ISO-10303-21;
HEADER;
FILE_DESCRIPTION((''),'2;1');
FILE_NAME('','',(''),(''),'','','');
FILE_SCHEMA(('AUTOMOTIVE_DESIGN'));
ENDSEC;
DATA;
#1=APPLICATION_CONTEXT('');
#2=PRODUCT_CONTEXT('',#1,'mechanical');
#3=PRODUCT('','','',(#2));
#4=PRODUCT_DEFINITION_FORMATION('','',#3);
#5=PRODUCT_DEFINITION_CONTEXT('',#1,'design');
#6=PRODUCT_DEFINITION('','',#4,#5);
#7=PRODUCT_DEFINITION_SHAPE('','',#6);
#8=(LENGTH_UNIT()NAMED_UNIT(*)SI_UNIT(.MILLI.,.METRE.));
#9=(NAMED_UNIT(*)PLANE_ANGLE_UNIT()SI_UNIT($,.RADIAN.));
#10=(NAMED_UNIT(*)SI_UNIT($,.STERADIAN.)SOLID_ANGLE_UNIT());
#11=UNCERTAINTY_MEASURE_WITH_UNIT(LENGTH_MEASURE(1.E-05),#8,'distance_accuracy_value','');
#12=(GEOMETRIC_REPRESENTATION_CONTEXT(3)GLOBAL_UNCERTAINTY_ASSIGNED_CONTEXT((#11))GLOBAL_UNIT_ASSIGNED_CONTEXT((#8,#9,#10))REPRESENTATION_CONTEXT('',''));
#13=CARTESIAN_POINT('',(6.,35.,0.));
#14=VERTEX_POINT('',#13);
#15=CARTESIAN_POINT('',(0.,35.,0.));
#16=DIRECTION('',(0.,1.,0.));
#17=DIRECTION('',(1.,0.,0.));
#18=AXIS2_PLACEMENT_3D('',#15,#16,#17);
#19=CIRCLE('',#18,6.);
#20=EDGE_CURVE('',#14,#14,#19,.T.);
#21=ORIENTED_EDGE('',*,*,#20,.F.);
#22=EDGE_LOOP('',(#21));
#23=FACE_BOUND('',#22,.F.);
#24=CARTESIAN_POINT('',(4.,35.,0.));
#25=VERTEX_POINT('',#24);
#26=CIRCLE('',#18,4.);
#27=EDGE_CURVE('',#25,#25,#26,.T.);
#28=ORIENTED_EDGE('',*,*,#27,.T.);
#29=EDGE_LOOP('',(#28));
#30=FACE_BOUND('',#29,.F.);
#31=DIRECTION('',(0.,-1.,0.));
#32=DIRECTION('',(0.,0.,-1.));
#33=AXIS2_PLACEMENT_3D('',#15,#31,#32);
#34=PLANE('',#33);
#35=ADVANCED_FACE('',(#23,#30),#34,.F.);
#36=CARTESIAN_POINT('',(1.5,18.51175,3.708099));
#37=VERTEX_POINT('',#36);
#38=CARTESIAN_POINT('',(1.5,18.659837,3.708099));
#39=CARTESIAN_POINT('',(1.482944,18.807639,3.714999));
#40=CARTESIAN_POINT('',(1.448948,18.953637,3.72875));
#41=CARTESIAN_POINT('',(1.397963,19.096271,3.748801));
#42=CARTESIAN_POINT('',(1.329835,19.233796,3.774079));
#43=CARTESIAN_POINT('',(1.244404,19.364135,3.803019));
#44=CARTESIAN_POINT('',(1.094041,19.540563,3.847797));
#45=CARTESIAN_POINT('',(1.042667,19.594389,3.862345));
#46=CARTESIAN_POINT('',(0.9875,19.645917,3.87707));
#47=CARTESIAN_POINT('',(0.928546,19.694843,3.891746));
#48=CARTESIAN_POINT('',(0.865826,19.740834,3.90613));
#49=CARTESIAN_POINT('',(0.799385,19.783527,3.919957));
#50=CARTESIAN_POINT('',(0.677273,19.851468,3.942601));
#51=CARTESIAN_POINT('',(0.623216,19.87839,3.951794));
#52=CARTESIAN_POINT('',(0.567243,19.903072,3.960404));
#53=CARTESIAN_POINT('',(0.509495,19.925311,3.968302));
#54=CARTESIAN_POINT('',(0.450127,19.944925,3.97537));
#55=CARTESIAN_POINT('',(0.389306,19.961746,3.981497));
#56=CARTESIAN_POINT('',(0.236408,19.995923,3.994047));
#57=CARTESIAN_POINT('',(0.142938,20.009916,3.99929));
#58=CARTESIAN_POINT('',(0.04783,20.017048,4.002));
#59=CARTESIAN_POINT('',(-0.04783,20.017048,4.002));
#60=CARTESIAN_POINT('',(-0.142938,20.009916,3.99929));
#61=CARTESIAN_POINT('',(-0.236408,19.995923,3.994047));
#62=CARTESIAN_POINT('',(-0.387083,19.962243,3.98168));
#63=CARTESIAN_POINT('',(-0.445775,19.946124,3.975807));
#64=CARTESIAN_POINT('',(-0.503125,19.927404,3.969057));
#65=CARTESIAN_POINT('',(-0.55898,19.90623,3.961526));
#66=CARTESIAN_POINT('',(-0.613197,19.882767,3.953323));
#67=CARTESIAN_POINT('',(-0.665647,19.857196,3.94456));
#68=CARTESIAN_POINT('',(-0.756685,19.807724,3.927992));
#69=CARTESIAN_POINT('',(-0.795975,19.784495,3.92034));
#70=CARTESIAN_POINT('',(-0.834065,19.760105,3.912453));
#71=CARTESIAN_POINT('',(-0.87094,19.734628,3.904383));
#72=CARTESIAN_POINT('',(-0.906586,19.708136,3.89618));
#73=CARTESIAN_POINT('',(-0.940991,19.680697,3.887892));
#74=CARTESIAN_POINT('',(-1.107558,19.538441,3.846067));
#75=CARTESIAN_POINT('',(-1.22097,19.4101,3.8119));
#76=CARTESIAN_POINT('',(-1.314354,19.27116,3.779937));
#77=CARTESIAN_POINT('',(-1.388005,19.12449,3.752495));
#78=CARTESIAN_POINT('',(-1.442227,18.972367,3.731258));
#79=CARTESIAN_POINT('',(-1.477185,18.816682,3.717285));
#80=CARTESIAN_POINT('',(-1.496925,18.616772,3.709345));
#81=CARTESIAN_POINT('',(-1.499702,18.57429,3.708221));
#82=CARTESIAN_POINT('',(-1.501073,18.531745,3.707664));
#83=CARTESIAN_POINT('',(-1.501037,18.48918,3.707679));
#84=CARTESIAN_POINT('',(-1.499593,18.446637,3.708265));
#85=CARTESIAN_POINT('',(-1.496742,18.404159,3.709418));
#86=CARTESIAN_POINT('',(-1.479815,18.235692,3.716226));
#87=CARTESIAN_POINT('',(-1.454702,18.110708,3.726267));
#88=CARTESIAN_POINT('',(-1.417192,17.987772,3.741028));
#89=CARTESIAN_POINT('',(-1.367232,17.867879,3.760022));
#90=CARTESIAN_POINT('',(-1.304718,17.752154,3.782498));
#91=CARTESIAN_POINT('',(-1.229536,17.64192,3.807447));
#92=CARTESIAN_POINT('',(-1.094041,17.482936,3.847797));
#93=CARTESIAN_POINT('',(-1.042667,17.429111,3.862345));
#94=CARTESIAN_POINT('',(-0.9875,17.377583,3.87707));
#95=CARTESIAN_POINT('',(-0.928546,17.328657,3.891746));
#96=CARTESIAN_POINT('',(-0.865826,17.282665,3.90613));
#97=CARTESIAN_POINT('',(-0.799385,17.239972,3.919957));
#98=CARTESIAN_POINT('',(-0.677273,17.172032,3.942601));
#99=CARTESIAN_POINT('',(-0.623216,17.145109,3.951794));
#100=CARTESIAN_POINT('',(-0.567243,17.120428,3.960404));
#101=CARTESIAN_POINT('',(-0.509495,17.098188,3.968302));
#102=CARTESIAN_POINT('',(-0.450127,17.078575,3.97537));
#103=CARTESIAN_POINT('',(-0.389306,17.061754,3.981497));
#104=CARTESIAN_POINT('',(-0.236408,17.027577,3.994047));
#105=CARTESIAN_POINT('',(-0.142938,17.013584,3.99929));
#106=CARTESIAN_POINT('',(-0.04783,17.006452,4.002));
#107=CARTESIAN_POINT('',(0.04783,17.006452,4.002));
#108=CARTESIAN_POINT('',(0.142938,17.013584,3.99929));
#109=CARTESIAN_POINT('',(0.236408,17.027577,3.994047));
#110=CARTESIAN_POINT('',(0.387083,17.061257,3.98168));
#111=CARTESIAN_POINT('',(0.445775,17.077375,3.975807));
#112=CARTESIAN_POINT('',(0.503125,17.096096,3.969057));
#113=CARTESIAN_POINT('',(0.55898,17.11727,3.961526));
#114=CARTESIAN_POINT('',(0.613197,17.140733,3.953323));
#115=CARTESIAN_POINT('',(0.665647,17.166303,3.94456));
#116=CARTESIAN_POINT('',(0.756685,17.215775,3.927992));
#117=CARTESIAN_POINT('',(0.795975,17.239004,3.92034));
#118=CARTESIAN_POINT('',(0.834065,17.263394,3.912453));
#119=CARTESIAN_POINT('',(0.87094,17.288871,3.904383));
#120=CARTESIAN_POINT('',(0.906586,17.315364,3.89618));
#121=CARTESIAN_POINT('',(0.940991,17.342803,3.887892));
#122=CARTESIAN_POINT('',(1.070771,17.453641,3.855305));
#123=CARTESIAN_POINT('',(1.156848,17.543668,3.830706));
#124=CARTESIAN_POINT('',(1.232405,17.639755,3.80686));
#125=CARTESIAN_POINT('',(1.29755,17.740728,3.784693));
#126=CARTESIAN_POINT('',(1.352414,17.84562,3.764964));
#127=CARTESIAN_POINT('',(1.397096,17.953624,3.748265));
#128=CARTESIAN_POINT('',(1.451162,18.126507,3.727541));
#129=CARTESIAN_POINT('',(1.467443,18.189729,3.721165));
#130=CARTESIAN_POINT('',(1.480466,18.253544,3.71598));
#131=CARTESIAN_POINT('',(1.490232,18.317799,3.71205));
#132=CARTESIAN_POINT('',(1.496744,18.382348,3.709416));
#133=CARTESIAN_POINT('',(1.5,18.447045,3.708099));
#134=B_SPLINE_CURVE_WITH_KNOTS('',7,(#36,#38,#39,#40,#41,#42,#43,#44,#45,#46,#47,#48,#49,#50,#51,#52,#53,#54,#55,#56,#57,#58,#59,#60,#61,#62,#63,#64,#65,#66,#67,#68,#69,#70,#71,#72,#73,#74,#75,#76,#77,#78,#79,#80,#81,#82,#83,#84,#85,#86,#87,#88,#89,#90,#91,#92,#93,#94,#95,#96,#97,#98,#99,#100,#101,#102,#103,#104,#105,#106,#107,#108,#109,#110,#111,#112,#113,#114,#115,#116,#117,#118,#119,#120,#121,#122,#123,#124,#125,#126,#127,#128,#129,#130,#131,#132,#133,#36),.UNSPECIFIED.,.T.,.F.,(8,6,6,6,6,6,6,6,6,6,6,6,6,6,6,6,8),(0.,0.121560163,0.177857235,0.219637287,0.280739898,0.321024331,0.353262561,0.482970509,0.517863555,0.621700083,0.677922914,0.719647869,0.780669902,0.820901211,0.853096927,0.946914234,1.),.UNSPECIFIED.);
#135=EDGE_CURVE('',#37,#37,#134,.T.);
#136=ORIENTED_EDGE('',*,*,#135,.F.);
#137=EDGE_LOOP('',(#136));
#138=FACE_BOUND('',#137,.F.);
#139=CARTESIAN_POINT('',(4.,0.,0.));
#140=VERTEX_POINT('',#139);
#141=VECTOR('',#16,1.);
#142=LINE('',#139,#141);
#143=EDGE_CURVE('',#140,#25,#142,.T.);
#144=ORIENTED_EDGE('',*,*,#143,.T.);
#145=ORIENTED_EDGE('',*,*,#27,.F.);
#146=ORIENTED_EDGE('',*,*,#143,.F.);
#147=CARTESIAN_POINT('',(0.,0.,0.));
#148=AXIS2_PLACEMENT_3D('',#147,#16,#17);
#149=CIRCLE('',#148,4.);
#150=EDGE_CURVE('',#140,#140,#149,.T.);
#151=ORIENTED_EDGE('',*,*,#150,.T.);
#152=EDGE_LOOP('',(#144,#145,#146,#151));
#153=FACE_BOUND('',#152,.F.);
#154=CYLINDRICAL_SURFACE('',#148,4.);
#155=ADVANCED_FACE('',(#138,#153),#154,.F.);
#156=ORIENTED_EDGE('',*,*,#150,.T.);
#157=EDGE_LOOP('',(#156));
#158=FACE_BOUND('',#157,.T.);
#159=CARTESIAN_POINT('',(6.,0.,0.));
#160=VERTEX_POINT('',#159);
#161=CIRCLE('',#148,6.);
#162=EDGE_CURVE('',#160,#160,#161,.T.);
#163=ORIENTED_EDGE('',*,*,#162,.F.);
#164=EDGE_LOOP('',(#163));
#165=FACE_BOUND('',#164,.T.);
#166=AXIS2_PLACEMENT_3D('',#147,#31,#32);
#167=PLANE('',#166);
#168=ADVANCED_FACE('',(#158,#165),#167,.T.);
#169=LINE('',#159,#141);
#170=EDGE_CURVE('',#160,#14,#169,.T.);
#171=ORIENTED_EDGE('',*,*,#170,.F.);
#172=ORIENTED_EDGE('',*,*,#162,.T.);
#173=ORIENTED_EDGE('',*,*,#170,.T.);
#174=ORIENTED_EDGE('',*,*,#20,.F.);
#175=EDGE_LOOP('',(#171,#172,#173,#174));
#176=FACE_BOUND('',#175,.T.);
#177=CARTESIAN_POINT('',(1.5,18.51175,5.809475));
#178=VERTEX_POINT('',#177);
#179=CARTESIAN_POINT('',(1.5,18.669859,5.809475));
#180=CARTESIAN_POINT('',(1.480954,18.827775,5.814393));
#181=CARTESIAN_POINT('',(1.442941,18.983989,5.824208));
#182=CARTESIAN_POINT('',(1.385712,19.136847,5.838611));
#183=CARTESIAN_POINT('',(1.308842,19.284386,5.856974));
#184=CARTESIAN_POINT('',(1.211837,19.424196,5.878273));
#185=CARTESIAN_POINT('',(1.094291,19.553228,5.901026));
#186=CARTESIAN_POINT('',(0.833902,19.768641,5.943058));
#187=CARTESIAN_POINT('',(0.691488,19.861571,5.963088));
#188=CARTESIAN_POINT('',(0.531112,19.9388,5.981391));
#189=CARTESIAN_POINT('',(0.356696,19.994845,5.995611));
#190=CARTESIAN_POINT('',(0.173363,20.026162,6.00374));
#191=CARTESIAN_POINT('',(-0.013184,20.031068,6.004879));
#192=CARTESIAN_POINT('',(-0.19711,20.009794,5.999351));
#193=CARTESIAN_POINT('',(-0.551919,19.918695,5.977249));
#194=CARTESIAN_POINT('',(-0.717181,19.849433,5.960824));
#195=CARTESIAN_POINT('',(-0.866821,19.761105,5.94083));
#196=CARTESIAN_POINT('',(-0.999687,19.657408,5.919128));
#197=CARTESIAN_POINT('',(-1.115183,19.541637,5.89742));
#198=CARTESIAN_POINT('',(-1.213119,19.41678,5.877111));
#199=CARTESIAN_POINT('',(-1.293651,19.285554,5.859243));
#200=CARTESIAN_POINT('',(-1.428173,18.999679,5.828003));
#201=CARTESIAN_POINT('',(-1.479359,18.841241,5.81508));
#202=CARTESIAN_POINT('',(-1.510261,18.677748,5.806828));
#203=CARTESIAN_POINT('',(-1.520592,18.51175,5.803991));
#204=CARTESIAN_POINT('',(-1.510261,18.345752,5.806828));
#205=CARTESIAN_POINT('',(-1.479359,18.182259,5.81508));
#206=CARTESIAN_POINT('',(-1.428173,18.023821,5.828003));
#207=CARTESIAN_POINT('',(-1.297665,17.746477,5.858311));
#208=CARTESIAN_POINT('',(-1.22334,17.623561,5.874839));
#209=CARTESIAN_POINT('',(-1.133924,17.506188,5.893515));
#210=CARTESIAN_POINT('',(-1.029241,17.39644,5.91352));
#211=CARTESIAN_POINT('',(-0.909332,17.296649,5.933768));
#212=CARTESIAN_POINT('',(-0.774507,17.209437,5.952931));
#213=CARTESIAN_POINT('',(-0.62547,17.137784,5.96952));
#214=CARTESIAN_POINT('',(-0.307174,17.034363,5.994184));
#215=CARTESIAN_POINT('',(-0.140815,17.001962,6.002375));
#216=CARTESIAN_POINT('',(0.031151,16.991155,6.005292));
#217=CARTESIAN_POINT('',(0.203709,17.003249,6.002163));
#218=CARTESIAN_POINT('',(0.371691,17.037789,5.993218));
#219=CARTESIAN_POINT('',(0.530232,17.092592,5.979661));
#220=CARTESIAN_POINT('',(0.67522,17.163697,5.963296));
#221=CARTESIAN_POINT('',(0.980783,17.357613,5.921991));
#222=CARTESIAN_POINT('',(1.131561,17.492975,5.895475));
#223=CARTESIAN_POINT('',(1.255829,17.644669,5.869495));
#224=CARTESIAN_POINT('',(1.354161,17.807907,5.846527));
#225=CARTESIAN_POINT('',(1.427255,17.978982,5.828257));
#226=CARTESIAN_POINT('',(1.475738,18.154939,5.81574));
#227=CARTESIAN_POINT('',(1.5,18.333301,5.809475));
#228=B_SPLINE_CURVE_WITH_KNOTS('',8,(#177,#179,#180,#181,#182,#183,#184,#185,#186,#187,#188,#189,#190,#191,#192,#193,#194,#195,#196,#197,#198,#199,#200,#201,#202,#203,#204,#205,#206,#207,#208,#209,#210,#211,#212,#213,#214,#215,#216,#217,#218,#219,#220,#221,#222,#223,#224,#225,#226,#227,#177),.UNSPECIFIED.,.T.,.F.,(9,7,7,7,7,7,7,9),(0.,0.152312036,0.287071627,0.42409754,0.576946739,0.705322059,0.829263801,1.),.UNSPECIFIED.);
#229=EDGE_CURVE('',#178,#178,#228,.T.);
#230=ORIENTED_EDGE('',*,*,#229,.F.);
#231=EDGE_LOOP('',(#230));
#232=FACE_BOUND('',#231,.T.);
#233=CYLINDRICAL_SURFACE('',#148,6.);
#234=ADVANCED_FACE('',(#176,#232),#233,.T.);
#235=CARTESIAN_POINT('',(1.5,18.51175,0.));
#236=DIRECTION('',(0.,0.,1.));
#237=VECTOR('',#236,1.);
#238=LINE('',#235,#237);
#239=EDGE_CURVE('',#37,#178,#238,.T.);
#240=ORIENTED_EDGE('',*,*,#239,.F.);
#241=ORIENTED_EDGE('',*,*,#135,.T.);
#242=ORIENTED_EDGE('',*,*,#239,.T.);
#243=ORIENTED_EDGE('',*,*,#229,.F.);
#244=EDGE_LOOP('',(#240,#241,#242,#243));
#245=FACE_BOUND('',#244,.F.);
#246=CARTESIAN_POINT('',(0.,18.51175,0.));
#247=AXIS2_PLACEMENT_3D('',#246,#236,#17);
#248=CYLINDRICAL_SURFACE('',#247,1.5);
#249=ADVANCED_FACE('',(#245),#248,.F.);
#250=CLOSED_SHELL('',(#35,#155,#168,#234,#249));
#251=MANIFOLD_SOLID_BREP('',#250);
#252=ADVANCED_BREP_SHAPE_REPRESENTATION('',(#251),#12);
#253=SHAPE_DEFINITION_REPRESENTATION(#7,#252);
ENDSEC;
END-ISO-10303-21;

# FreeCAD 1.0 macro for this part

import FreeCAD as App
import Part
import Sketcher
Q = App.Units.Quantity

doc = App.newDocument("Part")
body = doc.addObject("PartDesign::Body", "Body")

sketch1 = body.newObject("Sketcher::SketchObject", "Sketch")
sketch1.AttachmentSupport = (doc.getObject("XZ_Plane"), [""])
sketch1.MapMode = "FlatFace"
sketch1.addGeometry(Part.Circle(App.Vector(0, 0, 0), App.Vector(0, 0, 1), 6), False)
sketch1.addGeometry(Part.Circle(App.Vector(0, 0, 0), App.Vector(0, 0, 1), 4), False)
sketch1.addConstraint(Sketcher.Constraint("Coincident", 0, 3, -1, 1))
sketch1.addConstraint(Sketcher.Constraint("Coincident", 1, 3, -1, 1))
sketch1.addConstraint(Sketcher.Constraint("Diameter", 0, Q("12 mm")))
sketch1.addConstraint(Sketcher.Constraint("Diameter", 1, Q("8 mm")))

sketch2 = body.newObject("Sketcher::SketchObject", "Sketch001")
sketch2.AttachmentSupport = (doc.getObject("XY_Plane"), [""])
sketch2.MapMode = "FlatFace"
sketch2.addGeometry(Part.LineSegment(App.Vector(0, 0, 0), App.Vector(0, 35, 0)), False)
sketch2.addConstraint(Sketcher.Constraint("Vertical", 0))
sketch2.addConstraint(Sketcher.Constraint("Coincident", 0, 1, -1, 1))
sketch2.addConstraint(Sketcher.Constraint("DistanceY", 0, 1, 0, 2, Q("35 mm")))
doc.recompute()

additivepipe = body.newObject("PartDesign::AdditivePipe", "AdditivePipe")
additivepipe.Profile = sketch1
additivepipe.Spine = (sketch2, ["Edge1"])

sketch3 = body.newObject("Sketcher::SketchObject", "Sketch002")
sketch3.AttachmentSupport = (doc.getObject("XY_Plane"), [""])
sketch3.MapMode = "FlatFace"
sketch3.addGeometry(Part.Circle(App.Vector(0, 18.5, 0), App.Vector(0, 0, 1), 1.5), False)
sketch3.addConstraint(Sketcher.Constraint("PointOnObject", 0, 3, -2))
sketch3.addConstraint(Sketcher.Constraint("Diameter", 0, Q("3 mm")))
sketch3.addConstraint(Sketcher.Constraint("DistanceY", -1, 1, 0, 3, Q("18.51175 mm")))

sketch4 = body.newObject("Sketcher::SketchObject", "Sketch003")
sketch4.AttachmentSupport = (doc.getObject("XZ_Plane"), [""])
sketch4.MapMode = "FlatFace"
sketch4.addGeometry(Part.LineSegment(App.Vector(-2, 0, 0), App.Vector(-2, 15, 0)), False)
sketch4.addConstraint(Sketcher.Constraint("Vertical", 0))
sketch4.addConstraint(Sketcher.Constraint("PointOnObject", 0, 1, -1))
sketch4.addConstraint(Sketcher.Constraint("DistanceY", 0, 1, 0, 2, Q("15 mm")))
sketch4.addConstraint(Sketcher.Constraint("DistanceX", 0, 1, -1, 1, Q("2.397606 mm")))
doc.recompute()

subtractivepipe = body.newObject("PartDesign::SubtractivePipe", "SubtractivePipe")
subtractivepipe.Profile = sketch3
subtractivepipe.Spine = (sketch4, ["Edge1"])

doc.recompute()
